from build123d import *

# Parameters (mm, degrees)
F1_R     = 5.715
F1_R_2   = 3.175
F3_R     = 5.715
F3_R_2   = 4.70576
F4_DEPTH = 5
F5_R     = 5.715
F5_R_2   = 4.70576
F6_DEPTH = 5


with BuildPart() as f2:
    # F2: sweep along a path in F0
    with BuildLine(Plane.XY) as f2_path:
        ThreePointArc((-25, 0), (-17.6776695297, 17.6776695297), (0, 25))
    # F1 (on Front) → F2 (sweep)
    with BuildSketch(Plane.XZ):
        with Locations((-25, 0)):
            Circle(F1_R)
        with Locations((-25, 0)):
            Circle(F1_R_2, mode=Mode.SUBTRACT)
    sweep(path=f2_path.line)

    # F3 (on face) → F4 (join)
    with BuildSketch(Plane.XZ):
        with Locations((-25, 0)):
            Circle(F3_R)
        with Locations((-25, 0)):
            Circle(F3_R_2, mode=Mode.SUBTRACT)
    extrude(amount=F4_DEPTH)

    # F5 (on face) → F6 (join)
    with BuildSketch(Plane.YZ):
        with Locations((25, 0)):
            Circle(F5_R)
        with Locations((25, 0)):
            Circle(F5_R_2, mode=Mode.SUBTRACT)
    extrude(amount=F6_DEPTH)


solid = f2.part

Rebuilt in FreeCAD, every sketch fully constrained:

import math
import FreeCAD as App
import Part
import Sketcher
Q = App.Units.Quantity

doc = App.newDocument("Part")
body = doc.addObject("PartDesign::Body", "Body")

# Sketch on XZ plane
sketch1 = body.newObject("Sketcher::SketchObject", "Sketch")
sketch1.AttachmentSupport = (doc.getObject("XZ_Plane"), [""])
sketch1.MapMode = "FlatFace"
sketch1.addGeometry([
    Part.Circle(App.Vector(-25, 0, 0), App.Vector(0, 0, 1), 5.7),
    Part.Circle(App.Vector(-25, 0, 0), App.Vector(0, 0, 1), 3.2),
], False)
sketch1.addConstraint([
    Sketcher.Constraint("Coincident", 1, 3, 0, 3),
    Sketcher.Constraint("PointOnObject", 0, 3, -1),
    Sketcher.Constraint("Diameter", 0, Q("11.43 mm")),
    Sketcher.Constraint("Diameter", 1, Q("6.35 mm")),
    Sketcher.Constraint("DistanceX", 0, 3, -1, 1, Q("25 mm")),
])

# Sketch on XY plane
sketch2 = body.newObject("Sketcher::SketchObject", "Sketch001")
sketch2.AttachmentSupport = (doc.getObject("XY_Plane"), [""])
sketch2.MapMode = "FlatFace"
sketch2.addGeometry(Part.ArcOfCircle(Part.Circle(App.Vector(0, 0, 0), App.Vector(0, 0, 1), 25), math.radians(90), math.radians(180)), False)
sketch2.addConstraint([
    Sketcher.Constraint("Coincident", 0, 3, -1, 1),
    Sketcher.Constraint("PointOnObject", 0, 1, -2),
    Sketcher.Constraint("PointOnObject", 0, 2, -1),
    Sketcher.Constraint("Radius", 0, Q("25 mm")),
])
doc.recompute()

additivepipe = body.newObject("PartDesign::AdditivePipe", "AdditivePipe")
additivepipe.Profile = sketch1
additivepipe.Spine = (sketch2, ["Edge1"])

# Sketch on XZ plane
sketch3 = body.newObject("Sketcher::SketchObject", "Sketch002")
sketch3.AttachmentSupport = (doc.getObject("XZ_Plane"), [""])
sketch3.MapMode = "FlatFace"
sketch3.addGeometry([
    Part.Circle(App.Vector(-25, 0, 0), App.Vector(0, 0, 1), 5.7),
    Part.Circle(App.Vector(-25, 0, 0), App.Vector(0, 0, 1), 4.7),
], False)
sketch3.addConstraint([
    Sketcher.Constraint("Coincident", 1, 3, 0, 3),
    Sketcher.Constraint("PointOnObject", 0, 3, -1),
    Sketcher.Constraint("Diameter", 0, Q("11.43 mm")),
    Sketcher.Constraint("DistanceX", 0, 3, -1, 1, Q("25 mm")),
    Sketcher.Constraint("Diameter", 1, Q("9.41152 mm")),
])
pad1 = body.newObject("PartDesign::Pad", "Pad")
pad1.Profile = sketch3
pad1.Length = 5

# Sketch on YZ plane
sketch4 = body.newObject("Sketcher::SketchObject", "Sketch003")
sketch4.AttachmentSupport = (doc.getObject("YZ_Plane"), [""])
sketch4.MapMode = "FlatFace"
sketch4.addGeometry([
    Part.Circle(App.Vector(25, 0, 0), App.Vector(0, 0, 1), 5.7),
    Part.Circle(App.Vector(25, 0, 0), App.Vector(0, 0, 1), 4.7),
], False)
sketch4.addConstraint([
    Sketcher.Constraint("Coincident", 1, 3, 0, 3),
    Sketcher.Constraint("PointOnObject", 0, 3, -1),
    Sketcher.Constraint("Diameter", 0, Q("11.43 mm")),
    Sketcher.Constraint("DistanceX", -1, 1, 0, 3, Q("25 mm")),
    Sketcher.Constraint("Diameter", 1, Q("9.41152 mm")),
])
pad2 = body.newObject("PartDesign::Pad", "Pad001")
pad2.Profile = sketch4
pad2.Length = 5

doc.recompute()
